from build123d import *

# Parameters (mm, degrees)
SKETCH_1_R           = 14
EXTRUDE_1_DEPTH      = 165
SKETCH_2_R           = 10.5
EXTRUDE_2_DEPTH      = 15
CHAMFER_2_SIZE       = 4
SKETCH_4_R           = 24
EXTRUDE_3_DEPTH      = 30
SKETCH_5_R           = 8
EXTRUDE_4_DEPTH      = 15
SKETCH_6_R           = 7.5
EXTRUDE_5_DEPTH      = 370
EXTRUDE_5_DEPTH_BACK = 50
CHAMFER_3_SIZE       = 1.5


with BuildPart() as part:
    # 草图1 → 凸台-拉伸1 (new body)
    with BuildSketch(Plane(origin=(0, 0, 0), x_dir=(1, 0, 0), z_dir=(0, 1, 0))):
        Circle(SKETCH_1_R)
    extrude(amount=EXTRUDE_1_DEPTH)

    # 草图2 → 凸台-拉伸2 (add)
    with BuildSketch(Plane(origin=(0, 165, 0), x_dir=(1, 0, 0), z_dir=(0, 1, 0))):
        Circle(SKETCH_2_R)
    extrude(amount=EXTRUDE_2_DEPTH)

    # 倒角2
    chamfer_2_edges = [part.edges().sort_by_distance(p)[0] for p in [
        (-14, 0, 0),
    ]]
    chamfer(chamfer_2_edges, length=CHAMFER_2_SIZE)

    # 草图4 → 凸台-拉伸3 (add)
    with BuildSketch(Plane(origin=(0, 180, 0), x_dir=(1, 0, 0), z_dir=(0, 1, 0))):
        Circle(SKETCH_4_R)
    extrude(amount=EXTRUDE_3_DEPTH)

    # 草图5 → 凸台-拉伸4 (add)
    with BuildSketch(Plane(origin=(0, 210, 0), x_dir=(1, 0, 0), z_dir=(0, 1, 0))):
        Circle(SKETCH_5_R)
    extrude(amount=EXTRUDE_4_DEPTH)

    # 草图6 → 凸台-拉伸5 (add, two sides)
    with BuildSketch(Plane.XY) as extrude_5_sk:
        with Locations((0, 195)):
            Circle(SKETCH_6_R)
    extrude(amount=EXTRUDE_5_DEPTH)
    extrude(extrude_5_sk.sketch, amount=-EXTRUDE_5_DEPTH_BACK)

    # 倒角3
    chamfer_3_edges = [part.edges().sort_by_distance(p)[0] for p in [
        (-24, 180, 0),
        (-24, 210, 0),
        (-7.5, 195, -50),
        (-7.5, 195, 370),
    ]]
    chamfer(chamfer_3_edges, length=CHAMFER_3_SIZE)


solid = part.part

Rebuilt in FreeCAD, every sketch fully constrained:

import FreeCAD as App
import Part
import Sketcher
from FreeCAD import Vector
Q = App.Units.Quantity


def edges_at(feature, points):
    """Names of the edges that pass closest to the given points."""
    edges = feature.Shape.Edges
    near = lambda p: min(range(len(edges)), key=lambda i: edges[i].distToShape(Part.Vertex(*p))[0])
    return sorted({f"Edge{near(p) + 1}" for p in points})

doc = App.newDocument("Part")
body = doc.addObject("PartDesign::Body", "Body")

# Sketch on XZ plane
sketch1 = doc.addObject("Sketcher::SketchObject", "Sketch")
body.addObject(sketch1)
sketch1.AttachmentSupport = (doc.XZ_Plane, [""])
sketch1.MapMode = "FlatFace"
sketch1.addGeometry(Part.Circle(Vector(0, 0, 0), Vector(0, 0, 1), 14), False)
sketch1.addConstraint(Sketcher.Constraint("Coincident", 0, 3, -1, 1))
sketch1.addConstraint(Sketcher.Constraint("Diameter", 0, Q("28 mm")))
pad1 = doc.addObject("PartDesign::Pad", "Pad")
body.addObject(pad1)
pad1.Profile = sketch1
pad1.Length = 165
pad1.Reversed = True

# Sketch on XZ plane
sketch2 = doc.addObject("Sketcher::SketchObject", "Sketch001")
body.addObject(sketch2)
sketch2.AttachmentSupport = (doc.XZ_Plane, [""])
sketch2.MapMode = "FlatFace"
sketch2.AttachmentOffset = App.Placement(Vector(0, 0, -165), App.Rotation())
sketch2.addGeometry(Part.Circle(Vector(0, 0, 0), Vector(0, 0, 1), 10), False)
sketch2.addConstraint(Sketcher.Constraint("Coincident", 0, 3, -1, 1))
sketch2.addConstraint(Sketcher.Constraint("Diameter", 0, Q("21 mm")))
pad2 = doc.addObject("PartDesign::Pad", "Pad001")
body.addObject(pad2)
pad2.Profile = sketch2
pad2.Length = 15
pad2.Reversed = True
doc.recompute()

chamfer = doc.addObject("PartDesign::Chamfer", "Chamfer")
body.addObject(chamfer)
chamfer.Base = (pad2, edges_at(pad2, [(-14, 0, 0)]))
chamfer.Size = 4

# Sketch on XZ plane
sketch3 = doc.addObject("Sketcher::SketchObject", "Sketch002")
body.addObject(sketch3)
sketch3.AttachmentSupport = (doc.XZ_Plane, [""])
sketch3.MapMode = "FlatFace"
sketch3.AttachmentOffset = App.Placement(Vector(0, 0, -180), App.Rotation())
sketch3.addGeometry(Part.Circle(Vector(0, 0, 0), Vector(0, 0, 1), 24), False)
sketch3.addConstraint(Sketcher.Constraint("Coincident", 0, 3, -1, 1))
sketch3.addConstraint(Sketcher.Constraint("Diameter", 0, Q("48 mm")))
pad3 = doc.addObject("PartDesign::Pad", "Pad002")
body.addObject(pad3)
pad3.Profile = sketch3
pad3.Length = 30
pad3.Reversed = True

# Sketch on XZ plane
sketch4 = doc.addObject("Sketcher::SketchObject", "Sketch003")
body.addObject(sketch4)
sketch4.AttachmentSupport = (doc.XZ_Plane, [""])
sketch4.MapMode = "FlatFace"
sketch4.AttachmentOffset = App.Placement(Vector(0, 0, -210), App.Rotation())
sketch4.addGeometry(Part.Circle(Vector(0, 0, 0), Vector(0, 0, 1), 8), False)
sketch4.addConstraint(Sketcher.Constraint("Coincident", 0, 3, -1, 1))
sketch4.addConstraint(Sketcher.Constraint("Diameter", 0, Q("16 mm")))
pad4 = doc.addObject("PartDesign::Pad", "Pad003")
body.addObject(pad4)
pad4.Profile = sketch4
pad4.Length = 15
pad4.Reversed = True

# Sketch on XY plane
sketch5 = doc.addObject("Sketcher::SketchObject", "Sketch004")
body.addObject(sketch5)
sketch5.AttachmentSupport = (doc.XY_Plane, [""])
sketch5.MapMode = "FlatFace"
sketch5.addGeometry(Part.Circle(Vector(0, 195, 0), Vector(0, 0, 1), 8), False)
sketch5.addConstraint(Sketcher.Constraint("PointOnObject", 0, 3, -2))
sketch5.addConstraint(Sketcher.Constraint("Diameter", 0, Q("15 mm")))
sketch5.addConstraint(Sketcher.Constraint("DistanceY", -1, 1, 0, 3, Q("195 mm")))
pad5 = doc.addObject("PartDesign::Pad", "Pad004")
body.addObject(pad5)
pad5.Profile = sketch5
pad5.Type = "TwoLengths"
pad5.Length = 370
pad5.Length2 = 50
doc.recompute()

chamfer2 = doc.addObject("PartDesign::Chamfer", "Chamfer001")
body.addObject(chamfer2)
chamfer2.Base = (pad5, edges_at(pad5, [
    (-24, 180, 0),
    (-24, 210, 0),
    (-7.5, 195, -50),
    (-7.5, 195, 370),
]))
chamfer2.Size = 1.5

doc.recompute()
